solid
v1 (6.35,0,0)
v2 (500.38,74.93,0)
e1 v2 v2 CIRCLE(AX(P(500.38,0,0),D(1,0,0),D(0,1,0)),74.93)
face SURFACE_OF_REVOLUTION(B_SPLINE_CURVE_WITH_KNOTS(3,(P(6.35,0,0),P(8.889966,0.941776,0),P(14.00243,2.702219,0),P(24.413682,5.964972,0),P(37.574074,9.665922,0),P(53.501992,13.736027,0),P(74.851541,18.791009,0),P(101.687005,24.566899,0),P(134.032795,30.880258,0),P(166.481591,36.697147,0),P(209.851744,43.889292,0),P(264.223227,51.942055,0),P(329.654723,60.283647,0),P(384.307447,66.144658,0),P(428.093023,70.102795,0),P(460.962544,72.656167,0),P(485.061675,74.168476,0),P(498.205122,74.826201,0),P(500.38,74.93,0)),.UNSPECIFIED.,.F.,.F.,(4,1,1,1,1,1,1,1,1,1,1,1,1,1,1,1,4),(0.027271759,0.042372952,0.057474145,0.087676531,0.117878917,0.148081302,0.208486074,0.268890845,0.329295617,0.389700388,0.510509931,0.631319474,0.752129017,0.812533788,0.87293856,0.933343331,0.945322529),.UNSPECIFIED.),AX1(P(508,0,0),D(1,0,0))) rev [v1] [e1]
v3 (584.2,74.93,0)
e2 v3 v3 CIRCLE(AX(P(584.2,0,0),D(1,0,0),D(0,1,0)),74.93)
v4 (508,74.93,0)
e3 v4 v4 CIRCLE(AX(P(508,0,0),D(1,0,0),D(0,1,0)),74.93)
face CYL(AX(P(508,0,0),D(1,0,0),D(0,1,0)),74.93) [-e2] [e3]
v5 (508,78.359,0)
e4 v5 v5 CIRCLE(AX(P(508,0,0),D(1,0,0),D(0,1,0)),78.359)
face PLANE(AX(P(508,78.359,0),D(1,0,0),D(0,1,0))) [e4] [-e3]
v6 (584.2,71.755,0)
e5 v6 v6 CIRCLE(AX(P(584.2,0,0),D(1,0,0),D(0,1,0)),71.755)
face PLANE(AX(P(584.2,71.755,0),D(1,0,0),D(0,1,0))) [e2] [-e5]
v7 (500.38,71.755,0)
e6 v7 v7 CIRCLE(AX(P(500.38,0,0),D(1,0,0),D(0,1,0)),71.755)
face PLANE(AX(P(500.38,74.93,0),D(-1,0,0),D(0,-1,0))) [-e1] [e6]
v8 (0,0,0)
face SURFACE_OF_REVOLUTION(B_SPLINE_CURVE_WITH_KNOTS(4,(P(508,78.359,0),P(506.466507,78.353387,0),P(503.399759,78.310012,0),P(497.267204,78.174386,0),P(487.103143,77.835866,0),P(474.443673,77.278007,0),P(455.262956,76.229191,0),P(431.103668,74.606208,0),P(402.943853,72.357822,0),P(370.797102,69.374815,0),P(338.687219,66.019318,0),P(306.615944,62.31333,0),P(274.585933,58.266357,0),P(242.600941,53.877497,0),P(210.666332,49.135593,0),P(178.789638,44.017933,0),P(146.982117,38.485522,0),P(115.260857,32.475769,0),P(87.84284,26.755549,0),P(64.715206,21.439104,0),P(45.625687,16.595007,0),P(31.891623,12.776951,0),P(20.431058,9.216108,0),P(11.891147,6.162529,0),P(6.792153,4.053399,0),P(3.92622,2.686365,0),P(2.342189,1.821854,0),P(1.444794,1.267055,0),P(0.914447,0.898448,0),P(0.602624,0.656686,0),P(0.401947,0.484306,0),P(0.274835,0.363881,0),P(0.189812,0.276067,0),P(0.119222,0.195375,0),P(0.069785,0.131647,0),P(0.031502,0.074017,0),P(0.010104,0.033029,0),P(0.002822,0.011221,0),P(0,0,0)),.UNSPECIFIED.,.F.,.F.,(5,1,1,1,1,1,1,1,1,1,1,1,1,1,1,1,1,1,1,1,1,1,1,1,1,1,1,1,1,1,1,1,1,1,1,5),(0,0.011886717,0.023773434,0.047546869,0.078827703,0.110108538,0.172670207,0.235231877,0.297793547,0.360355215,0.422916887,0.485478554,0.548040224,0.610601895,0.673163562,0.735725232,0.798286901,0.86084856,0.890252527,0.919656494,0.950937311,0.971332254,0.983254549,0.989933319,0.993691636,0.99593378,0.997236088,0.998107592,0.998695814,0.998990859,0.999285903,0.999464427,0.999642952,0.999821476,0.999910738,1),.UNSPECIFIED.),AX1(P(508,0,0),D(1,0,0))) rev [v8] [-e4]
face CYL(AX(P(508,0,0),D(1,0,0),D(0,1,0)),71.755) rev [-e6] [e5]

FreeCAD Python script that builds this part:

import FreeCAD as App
import Part
import Sketcher
Q = App.Units.Quantity

doc = App.newDocument("Part")
body = doc.addObject("PartDesign::Body", "Body")

# Sketch on XY plane
sketch1 = body.newObject("Sketcher::SketchObject", "Sketch")
sketch1.AttachmentSupport = (doc.getObject("XY_Plane"), [""])
sketch1.MapMode = "FlatFace"
sketch1.addGeometry(Part.LineSegment(App.Vector(500.38, 74.93, 0), App.Vector(500.38, 71.755, 0)), False)
sketch1.addGeometry(Part.LineSegment(App.Vector(500.38, 71.755, 0), App.Vector(584.2, 71.755, 0)), False)
sketch1.addGeometry(Part.LineSegment(App.Vector(584.2, 71.755, 0), App.Vector(584.2, 74.93, 0)), False)
sketch1.addGeometry(Part.LineSegment(App.Vector(584.2, 74.93, 0), App.Vector(508, 74.93, 0)), False)
sketch1.addGeometry(Part.LineSegment(App.Vector(508, 74.93, 0), App.Vector(508, 78.359, 0)), False)
sketch1.addGeometry(Part.BSplineCurve([App.Vector(0, 0, 0), App.Vector(0.002822, 0.011221, 0), App.Vector(0.010104, 0.033029, 0), App.Vector(0.031502, 0.074017, 0), App.Vector(0.069785, 0.131647, 0), App.Vector(0.119222, 0.195375, 0), App.Vector(0.189812, 0.276067, 0), App.Vector(0.274835, 0.363881, 0), App.Vector(0.401947, 0.484306, 0), App.Vector(0.602624, 0.656686, 0), App.Vector(0.914447, 0.898448, 0), App.Vector(1.444794, 1.267055, 0), App.Vector(2.342189, 1.821854, 0), App.Vector(3.92622, 2.686365, 0), App.Vector(6.792153, 4.053399, 0), App.Vector(11.891147, 6.162529, 0), App.Vector(20.431058, 9.216108, 0), App.Vector(31.891623, 12.776951, 0), App.Vector(45.625687, 16.595007, 0), App.Vector(64.715206, 21.439104, 0), App.Vector(87.84284, 26.755549, 0), App.Vector(115.260857, 32.475769, 0), App.Vector(146.982117, 38.485522, 0), App.Vector(178.789638, 44.017933, 0), App.Vector(210.666332, 49.135593, 0), App.Vector(242.600941, 53.877497, 0), App.Vector(274.585933, 58.266357, 0), App.Vector(306.615944, 62.31333, 0), App.Vector(338.687219, 66.019318, 0), App.Vector(370.797102, 69.374815, 0), App.Vector(402.943853, 72.357822, 0), App.Vector(431.103668, 74.606208, 0), App.Vector(455.262956, 76.229191, 0), App.Vector(474.443673, 77.278007, 0), App.Vector(487.103143, 77.835866, 0), App.Vector(497.267204, 78.174386, 0), App.Vector(503.399759, 78.310012, 0), App.Vector(506.466507, 78.353387, 0), App.Vector(508, 78.359, 0)], [5, 1, 1, 1, 1, 1, 1, 1, 1, 1, 1, 1, 1, 1, 1, 1, 1, 1, 1, 1, 1, 1, 1, 1, 1, 1, 1, 1, 1, 1, 1, 1, 1, 1, 1, 5], [0, 0.000089262, 0.000178524, 0.000357048, 0.000535573, 0.000714097, 0.001009141, 0.001304186, 0.001892408, 0.002763912, 0.00406622, 0.006308364, 0.010066681, 0.016745451, 0.028667746, 0.049062689, 0.080343506, 0.109747473, 0.13915144, 0.201713099, 0.264274768, 0.326836438, 0.389398105, 0.451959776, 0.514521446, 0.577083113, 0.639644785, 0.702206453, 0.764768123, 0.827329793, 0.889891462, 0.921172297, 0.952453131, 0.976226566, 0.988113283, 1], False, 4, [1, 1, 1, 1, 1, 1, 1, 1, 1, 1, 1, 1, 1, 1, 1, 1, 1, 1, 1, 1, 1, 1, 1, 1, 1, 1, 1, 1, 1, 1, 1, 1, 1, 1, 1, 1, 1, 1, 1], False), False)
sketch1.addGeometry(Part.LineSegment(App.Vector(0, 0, 0), App.Vector(6.35, 0, 0)), False)
sketch1.addGeometry(Part.BSplineCurve([App.Vector(6.35, 0, 0), App.Vector(8.889966, 0.941776, 0), App.Vector(14.00243, 2.702219, 0), App.Vector(24.413682, 5.964972, 0), App.Vector(37.574074, 9.665922, 0), App.Vector(53.501992, 13.736027, 0), App.Vector(74.851541, 18.791009, 0), App.Vector(101.687005, 24.566899, 0), App.Vector(134.032795, 30.880258, 0), App.Vector(166.481591, 36.697147, 0), App.Vector(209.851744, 43.889292, 0), App.Vector(264.223227, 51.942055, 0), App.Vector(329.654723, 60.283647, 0), App.Vector(384.307447, 66.144658, 0), App.Vector(428.093023, 70.102795, 0), App.Vector(460.962544, 72.656167, 0), App.Vector(485.061675, 74.168476, 0), App.Vector(498.205122, 74.826201, 0), App.Vector(500.38, 74.93, 0)], [4, 1, 1, 1, 1, 1, 1, 1, 1, 1, 1, 1, 1, 1, 1, 1, 4], [0.027271759, 0.042372952, 0.057474145, 0.087676531, 0.117878917, 0.148081302, 0.208486074, 0.268890845, 0.329295617, 0.389700388, 0.510509931, 0.631319474, 0.752129017, 0.812533788, 0.87293856, 0.933343331, 0.945322529], False, 3, [1, 1, 1, 1, 1, 1, 1, 1, 1, 1, 1, 1, 1, 1, 1, 1, 1, 1, 1], False), False)
sketch1.addConstraint(Sketcher.Constraint("Block", 5))
sketch1.addConstraint(Sketcher.Constraint("Block", 7))
sketch1.addConstraint(Sketcher.Constraint("Coincident", 0, 2, 1, 1))
sketch1.addConstraint(Sketcher.Constraint("Coincident", 1, 2, 2, 1))
sketch1.addConstraint(Sketcher.Constraint("Coincident", 2, 2, 3, 1))
sketch1.addConstraint(Sketcher.Constraint("Coincident", 3, 2, 4, 1))
sketch1.addConstraint(Sketcher.Constraint("Coincident", 4, 2, 5, 2))
sketch1.addConstraint(Sketcher.Constraint("Coincident", 5, 1, 6, 1))
sketch1.addConstraint(Sketcher.Constraint("Coincident", 6, 2, 7, 1))
sketch1.addConstraint(Sketcher.Constraint("Coincident", 7, 2, 0, 1))
sketch1.addConstraint(Sketcher.Constraint("Vertical", 0))
sketch1.addConstraint(Sketcher.Constraint("Horizontal", 1))
sketch1.addConstraint(Sketcher.Constraint("Vertical", 2))
sketch1.addConstraint(Sketcher.Constraint("Horizontal", 3))
sketch1.addConstraint(Sketcher.Constraint("Vertical", 4))
sketch1.addConstraint(Sketcher.Constraint("Equal", 0, 2))
sketch1.addConstraint(Sketcher.Constraint("DistanceX", 3, 2, 3, 1, Q("3 in")))
sketch1.addConstraint(Sketcher.Constraint("DistanceY", 0, 2, 0, 1, Q("0.125 in")))
revolution = body.newObject("PartDesign::Revolution", "Revolution")
revolution.Profile = sketch1
revolution.ReferenceAxis = (sketch1, ["H_Axis"])
revolution.Angle = 360

doc.recompute()
